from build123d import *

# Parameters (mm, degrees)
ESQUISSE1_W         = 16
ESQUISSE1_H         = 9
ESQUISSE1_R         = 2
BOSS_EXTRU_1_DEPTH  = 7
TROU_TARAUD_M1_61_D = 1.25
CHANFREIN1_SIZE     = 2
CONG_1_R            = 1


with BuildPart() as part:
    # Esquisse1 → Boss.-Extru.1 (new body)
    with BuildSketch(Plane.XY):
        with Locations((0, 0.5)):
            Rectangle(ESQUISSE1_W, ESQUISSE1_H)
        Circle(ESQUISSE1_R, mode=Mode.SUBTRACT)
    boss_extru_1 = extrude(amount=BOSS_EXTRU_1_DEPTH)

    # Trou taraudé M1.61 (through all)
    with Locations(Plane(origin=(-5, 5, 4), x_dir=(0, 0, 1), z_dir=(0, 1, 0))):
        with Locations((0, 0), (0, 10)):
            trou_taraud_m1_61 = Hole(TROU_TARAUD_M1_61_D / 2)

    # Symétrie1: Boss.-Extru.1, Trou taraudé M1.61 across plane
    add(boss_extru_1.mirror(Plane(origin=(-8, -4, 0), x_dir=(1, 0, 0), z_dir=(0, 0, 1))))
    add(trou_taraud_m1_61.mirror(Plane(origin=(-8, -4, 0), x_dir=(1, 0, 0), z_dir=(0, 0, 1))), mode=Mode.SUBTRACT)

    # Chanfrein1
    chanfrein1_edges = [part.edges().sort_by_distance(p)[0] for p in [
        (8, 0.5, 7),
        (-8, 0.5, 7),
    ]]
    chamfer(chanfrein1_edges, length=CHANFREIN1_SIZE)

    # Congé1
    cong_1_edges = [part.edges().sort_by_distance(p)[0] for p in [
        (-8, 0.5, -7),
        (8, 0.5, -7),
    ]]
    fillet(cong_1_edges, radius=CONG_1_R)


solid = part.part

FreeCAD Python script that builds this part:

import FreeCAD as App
import Part
import Sketcher
Q = App.Units.Quantity


def edges_at(feature, points):
    """Names of the edges that pass closest to the given points."""
    edges = feature.Shape.Edges
    near = lambda p: min(range(len(edges)), key=lambda i: edges[i].distToShape(Part.Vertex(*p))[0])
    return sorted({f"Edge{near(p) + 1}" for p in points})

doc = App.newDocument("Part")
params = doc.addObject("Spreadsheet::Sheet", "Params")
for row, (alias, value) in enumerate([
    ("sketch1_diameter", "4 mm"),
    ("sketch1_width", "16 mm"),
    ("sketch1_height", "9 mm"),
    ("pad1_length", "7 mm"),
    ("sketch2_diameter", "1.25 mm"),
    ("hole_diameter", "1.25 mm"),
    ("chamfer_size", "2 mm"),
    ("fillet_radius", "1 mm"),
], start=1):
    params.set(f"A{row}", alias)
    params.set(f"B{row}", "=" + value)
    params.setAlias(f"B{row}", alias)

body = doc.addObject("PartDesign::Body", "Body")

sketch1 = body.newObject("Sketcher::SketchObject", "Sketch")
sketch1.AttachmentSupport = (doc.getObject("XY_Plane"), [""])
sketch1.MapMode = "FlatFace"
sketch1.addGeometry([
    Part.LineSegment(App.Vector(-8, 5, 0), App.Vector(-8, -4, 0)),
    Part.LineSegment(App.Vector(-8, -4, 0), App.Vector(8, -4, 0)),
    Part.LineSegment(App.Vector(8, -4, 0), App.Vector(8, 5, 0)),
    Part.LineSegment(App.Vector(8, 5, 0), App.Vector(-8, 5, 0)),
    Part.Circle(App.Vector(0, 0, 0), App.Vector(0, 0, 1), 2),
], False)
sketch1.addConstraint([
    Sketcher.Constraint("Coincident", 0, 2, 1, 1),
    Sketcher.Constraint("Coincident", 1, 2, 2, 1),
    Sketcher.Constraint("Coincident", 2, 2, 3, 1),
    Sketcher.Constraint("Coincident", 3, 2, 0, 1),
    Sketcher.Constraint("Vertical", 0),
    Sketcher.Constraint("Horizontal", 1),
    Sketcher.Constraint("Vertical", 2),
    Sketcher.Constraint("Horizontal", 3),
    Sketcher.Constraint("Coincident", 4, 3, -1, 1),
    Sketcher.Constraint("Diameter", 4, Q("4 mm")),
    Sketcher.Constraint("DistanceX", 1, 1, 1, 2, Q("16 mm")),
    Sketcher.Constraint("DistanceY", 0, 2, 0, 1, Q("9 mm")),
    Sketcher.Constraint("DistanceX", 0, 2, -1, 1, Q("8 mm")),
    Sketcher.Constraint("DistanceY", 0, 2, -1, 1, Q("4 mm")),
])
sketch1.setExpression("Constraints[9]", "Params.sketch1_diameter")
sketch1.setExpression("Constraints[10]", "Params.sketch1_width")
sketch1.setExpression("Constraints[11]", "Params.sketch1_height")
pad1 = body.newObject("PartDesign::Pad", "Pad")
pad1.Profile = sketch1
pad1.setExpression("Length", "Params.pad1_length")

sketch2 = body.newObject("Sketcher::SketchObject", "Sketch001")
sketch2.AttachmentSupport = (doc.getObject("XZ_Plane"), [""])
sketch2.MapMode = "FlatFace"
sketch2.AttachmentOffset = App.Placement(App.Vector(0, 0, -5), App.Rotation())
sketch2.addGeometry([
    Part.Circle(App.Vector(-5, 4, 0), App.Vector(0, 0, 1), 0.6),
    Part.Circle(App.Vector(5, 4, 0), App.Vector(0, 0, 1), 0.6),
], False)
sketch2.addConstraint([
    Sketcher.Constraint("Equal", 0, 1),
    Sketcher.Constraint("Symmetric", 0, 3, 1, 3, -2),
    Sketcher.Constraint("Diameter", 0, Q("1.25 mm")),
    Sketcher.Constraint("DistanceX", 0, 3, -1, 1, Q("5 mm")),
    Sketcher.Constraint("DistanceY", -1, 1, 0, 3, Q("4 mm")),
])
sketch2.setExpression("Constraints[2]", "Params.sketch2_diameter")
doc.recompute()
hole = body.newObject("PartDesign::Hole", "Hole")
hole.Profile = sketch2
hole.ThreadType = "None"
hole.setExpression("Diameter", "Params.hole_diameter")
hole.DepthType = "ThroughAll"
hole.Reversed = True
doc.recompute()

mirrored = body.newObject("PartDesign::Mirrored", "Mirrored")
mirrored.Originals = [pad1, hole]
mirrored.MirrorPlane = (doc.getObject("XY_Plane"), [""])
body.Tip = mirrored
doc.recompute()

chamfer = body.newObject("PartDesign::Chamfer", "Chamfer")
chamfer.Base = (mirrored, edges_at(mirrored, [(8, 0.5, 7), (-8, 0.5, 7)]))
chamfer.setExpression("Size", "Params.chamfer_size")
doc.recompute()

fillet = body.newObject("PartDesign::Fillet", "Fillet")
fillet.Base = (chamfer, edges_at(chamfer, [(-8, 0.5, -7), (8, 0.5, -7)]))
fillet.setExpression("Radius", "Params.fillet_radius")

doc.recompute()
